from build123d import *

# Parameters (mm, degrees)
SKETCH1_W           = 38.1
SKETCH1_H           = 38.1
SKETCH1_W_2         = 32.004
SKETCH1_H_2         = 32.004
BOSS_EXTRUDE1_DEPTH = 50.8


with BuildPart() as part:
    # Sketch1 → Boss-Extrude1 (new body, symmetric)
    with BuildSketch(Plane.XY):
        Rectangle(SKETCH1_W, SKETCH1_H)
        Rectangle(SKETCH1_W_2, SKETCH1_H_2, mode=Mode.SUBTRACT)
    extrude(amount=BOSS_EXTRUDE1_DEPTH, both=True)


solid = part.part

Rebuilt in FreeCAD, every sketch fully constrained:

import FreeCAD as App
import Part
import Sketcher
Q = App.Units.Quantity

doc = App.newDocument("Part")
params = doc.addObject("Spreadsheet::Sheet", "Params")
for row, (alias, value) in enumerate([
    ("sketch1_width", "1.5 in"),
    ("sketch1_width2", "1.26 in"),
    ("pad1_length", "4 in"),
], start=1):
    params.set(f"A{row}", alias)
    params.set(f"B{row}", "=" + value)
    params.setAlias(f"B{row}", alias)

body = doc.addObject("PartDesign::Body", "Body")

# Sketch on XY plane
sketch1 = body.newObject("Sketcher::SketchObject", "Sketch")
sketch1.AttachmentSupport = (doc.getObject("XY_Plane"), [""])
sketch1.MapMode = "FlatFace"
sketch1.addGeometry([
    Part.LineSegment(App.Vector(-19, 19, 0), App.Vector(-19, -19, 0)),  # 0
    Part.LineSegment(App.Vector(-19, -19, 0), App.Vector(19, -19, 0)),  # 1
    Part.LineSegment(App.Vector(19, -19, 0), App.Vector(19, 19, 0)),  # 2
    Part.LineSegment(App.Vector(19, 19, 0), App.Vector(-19, 19, 0)),  # 3
    Part.LineSegment(App.Vector(16, -16, 0), App.Vector(-16, -16, 0)),  # 4
    Part.LineSegment(App.Vector(-16, -16, 0), App.Vector(-16, 16, 0)),  # 5
    Part.LineSegment(App.Vector(-16, 16, 0), App.Vector(16, 16, 0)),  # 6
    Part.LineSegment(App.Vector(16, 16, 0), App.Vector(16, -16, 0)),  # 7
], False)
sketch1.addConstraint([
    Sketcher.Constraint("Coincident", 0, 2, 1, 1),
    Sketcher.Constraint("Coincident", 1, 2, 2, 1),
    Sketcher.Constraint("Coincident", 2, 2, 3, 1),
    Sketcher.Constraint("Coincident", 3, 2, 0, 1),
    Sketcher.Constraint("Coincident", 4, 2, 5, 1),
    Sketcher.Constraint("Coincident", 5, 2, 6, 1),
    Sketcher.Constraint("Coincident", 6, 2, 7, 1),
    Sketcher.Constraint("Coincident", 7, 2, 4, 1),
    Sketcher.Constraint("Vertical", 0),
    Sketcher.Constraint("Horizontal", 1),
    Sketcher.Constraint("Vertical", 2),
    Sketcher.Constraint("Horizontal", 3),
    Sketcher.Constraint("Horizontal", 4),
    Sketcher.Constraint("Vertical", 5),
    Sketcher.Constraint("Horizontal", 6),
    Sketcher.Constraint("Vertical", 7),
    Sketcher.Constraint("Symmetric", 0, 2, 2, 2, -1, 1),
    Sketcher.Constraint("Symmetric", 4, 2, 6, 2, -1, 1),
    Sketcher.Constraint("Equal", 3, 0),
    Sketcher.Constraint("Equal", 6, 5),
    Sketcher.Constraint("DistanceX", 1, 1, 1, 2, Q("1.5 in")),
    Sketcher.Constraint("DistanceX", 4, 2, 4, 1, Q("1.26 in")),
])
sketch1.setExpression("Constraints[20]", "Params.sketch1_width")
sketch1.setExpression("Constraints[21]", "Params.sketch1_width2")
pad1 = body.newObject("PartDesign::Pad", "Pad")
pad1.Profile = sketch1
pad1.setExpression("Length", "Params.pad1_length")
pad1.Midplane = True

doc.recompute()
